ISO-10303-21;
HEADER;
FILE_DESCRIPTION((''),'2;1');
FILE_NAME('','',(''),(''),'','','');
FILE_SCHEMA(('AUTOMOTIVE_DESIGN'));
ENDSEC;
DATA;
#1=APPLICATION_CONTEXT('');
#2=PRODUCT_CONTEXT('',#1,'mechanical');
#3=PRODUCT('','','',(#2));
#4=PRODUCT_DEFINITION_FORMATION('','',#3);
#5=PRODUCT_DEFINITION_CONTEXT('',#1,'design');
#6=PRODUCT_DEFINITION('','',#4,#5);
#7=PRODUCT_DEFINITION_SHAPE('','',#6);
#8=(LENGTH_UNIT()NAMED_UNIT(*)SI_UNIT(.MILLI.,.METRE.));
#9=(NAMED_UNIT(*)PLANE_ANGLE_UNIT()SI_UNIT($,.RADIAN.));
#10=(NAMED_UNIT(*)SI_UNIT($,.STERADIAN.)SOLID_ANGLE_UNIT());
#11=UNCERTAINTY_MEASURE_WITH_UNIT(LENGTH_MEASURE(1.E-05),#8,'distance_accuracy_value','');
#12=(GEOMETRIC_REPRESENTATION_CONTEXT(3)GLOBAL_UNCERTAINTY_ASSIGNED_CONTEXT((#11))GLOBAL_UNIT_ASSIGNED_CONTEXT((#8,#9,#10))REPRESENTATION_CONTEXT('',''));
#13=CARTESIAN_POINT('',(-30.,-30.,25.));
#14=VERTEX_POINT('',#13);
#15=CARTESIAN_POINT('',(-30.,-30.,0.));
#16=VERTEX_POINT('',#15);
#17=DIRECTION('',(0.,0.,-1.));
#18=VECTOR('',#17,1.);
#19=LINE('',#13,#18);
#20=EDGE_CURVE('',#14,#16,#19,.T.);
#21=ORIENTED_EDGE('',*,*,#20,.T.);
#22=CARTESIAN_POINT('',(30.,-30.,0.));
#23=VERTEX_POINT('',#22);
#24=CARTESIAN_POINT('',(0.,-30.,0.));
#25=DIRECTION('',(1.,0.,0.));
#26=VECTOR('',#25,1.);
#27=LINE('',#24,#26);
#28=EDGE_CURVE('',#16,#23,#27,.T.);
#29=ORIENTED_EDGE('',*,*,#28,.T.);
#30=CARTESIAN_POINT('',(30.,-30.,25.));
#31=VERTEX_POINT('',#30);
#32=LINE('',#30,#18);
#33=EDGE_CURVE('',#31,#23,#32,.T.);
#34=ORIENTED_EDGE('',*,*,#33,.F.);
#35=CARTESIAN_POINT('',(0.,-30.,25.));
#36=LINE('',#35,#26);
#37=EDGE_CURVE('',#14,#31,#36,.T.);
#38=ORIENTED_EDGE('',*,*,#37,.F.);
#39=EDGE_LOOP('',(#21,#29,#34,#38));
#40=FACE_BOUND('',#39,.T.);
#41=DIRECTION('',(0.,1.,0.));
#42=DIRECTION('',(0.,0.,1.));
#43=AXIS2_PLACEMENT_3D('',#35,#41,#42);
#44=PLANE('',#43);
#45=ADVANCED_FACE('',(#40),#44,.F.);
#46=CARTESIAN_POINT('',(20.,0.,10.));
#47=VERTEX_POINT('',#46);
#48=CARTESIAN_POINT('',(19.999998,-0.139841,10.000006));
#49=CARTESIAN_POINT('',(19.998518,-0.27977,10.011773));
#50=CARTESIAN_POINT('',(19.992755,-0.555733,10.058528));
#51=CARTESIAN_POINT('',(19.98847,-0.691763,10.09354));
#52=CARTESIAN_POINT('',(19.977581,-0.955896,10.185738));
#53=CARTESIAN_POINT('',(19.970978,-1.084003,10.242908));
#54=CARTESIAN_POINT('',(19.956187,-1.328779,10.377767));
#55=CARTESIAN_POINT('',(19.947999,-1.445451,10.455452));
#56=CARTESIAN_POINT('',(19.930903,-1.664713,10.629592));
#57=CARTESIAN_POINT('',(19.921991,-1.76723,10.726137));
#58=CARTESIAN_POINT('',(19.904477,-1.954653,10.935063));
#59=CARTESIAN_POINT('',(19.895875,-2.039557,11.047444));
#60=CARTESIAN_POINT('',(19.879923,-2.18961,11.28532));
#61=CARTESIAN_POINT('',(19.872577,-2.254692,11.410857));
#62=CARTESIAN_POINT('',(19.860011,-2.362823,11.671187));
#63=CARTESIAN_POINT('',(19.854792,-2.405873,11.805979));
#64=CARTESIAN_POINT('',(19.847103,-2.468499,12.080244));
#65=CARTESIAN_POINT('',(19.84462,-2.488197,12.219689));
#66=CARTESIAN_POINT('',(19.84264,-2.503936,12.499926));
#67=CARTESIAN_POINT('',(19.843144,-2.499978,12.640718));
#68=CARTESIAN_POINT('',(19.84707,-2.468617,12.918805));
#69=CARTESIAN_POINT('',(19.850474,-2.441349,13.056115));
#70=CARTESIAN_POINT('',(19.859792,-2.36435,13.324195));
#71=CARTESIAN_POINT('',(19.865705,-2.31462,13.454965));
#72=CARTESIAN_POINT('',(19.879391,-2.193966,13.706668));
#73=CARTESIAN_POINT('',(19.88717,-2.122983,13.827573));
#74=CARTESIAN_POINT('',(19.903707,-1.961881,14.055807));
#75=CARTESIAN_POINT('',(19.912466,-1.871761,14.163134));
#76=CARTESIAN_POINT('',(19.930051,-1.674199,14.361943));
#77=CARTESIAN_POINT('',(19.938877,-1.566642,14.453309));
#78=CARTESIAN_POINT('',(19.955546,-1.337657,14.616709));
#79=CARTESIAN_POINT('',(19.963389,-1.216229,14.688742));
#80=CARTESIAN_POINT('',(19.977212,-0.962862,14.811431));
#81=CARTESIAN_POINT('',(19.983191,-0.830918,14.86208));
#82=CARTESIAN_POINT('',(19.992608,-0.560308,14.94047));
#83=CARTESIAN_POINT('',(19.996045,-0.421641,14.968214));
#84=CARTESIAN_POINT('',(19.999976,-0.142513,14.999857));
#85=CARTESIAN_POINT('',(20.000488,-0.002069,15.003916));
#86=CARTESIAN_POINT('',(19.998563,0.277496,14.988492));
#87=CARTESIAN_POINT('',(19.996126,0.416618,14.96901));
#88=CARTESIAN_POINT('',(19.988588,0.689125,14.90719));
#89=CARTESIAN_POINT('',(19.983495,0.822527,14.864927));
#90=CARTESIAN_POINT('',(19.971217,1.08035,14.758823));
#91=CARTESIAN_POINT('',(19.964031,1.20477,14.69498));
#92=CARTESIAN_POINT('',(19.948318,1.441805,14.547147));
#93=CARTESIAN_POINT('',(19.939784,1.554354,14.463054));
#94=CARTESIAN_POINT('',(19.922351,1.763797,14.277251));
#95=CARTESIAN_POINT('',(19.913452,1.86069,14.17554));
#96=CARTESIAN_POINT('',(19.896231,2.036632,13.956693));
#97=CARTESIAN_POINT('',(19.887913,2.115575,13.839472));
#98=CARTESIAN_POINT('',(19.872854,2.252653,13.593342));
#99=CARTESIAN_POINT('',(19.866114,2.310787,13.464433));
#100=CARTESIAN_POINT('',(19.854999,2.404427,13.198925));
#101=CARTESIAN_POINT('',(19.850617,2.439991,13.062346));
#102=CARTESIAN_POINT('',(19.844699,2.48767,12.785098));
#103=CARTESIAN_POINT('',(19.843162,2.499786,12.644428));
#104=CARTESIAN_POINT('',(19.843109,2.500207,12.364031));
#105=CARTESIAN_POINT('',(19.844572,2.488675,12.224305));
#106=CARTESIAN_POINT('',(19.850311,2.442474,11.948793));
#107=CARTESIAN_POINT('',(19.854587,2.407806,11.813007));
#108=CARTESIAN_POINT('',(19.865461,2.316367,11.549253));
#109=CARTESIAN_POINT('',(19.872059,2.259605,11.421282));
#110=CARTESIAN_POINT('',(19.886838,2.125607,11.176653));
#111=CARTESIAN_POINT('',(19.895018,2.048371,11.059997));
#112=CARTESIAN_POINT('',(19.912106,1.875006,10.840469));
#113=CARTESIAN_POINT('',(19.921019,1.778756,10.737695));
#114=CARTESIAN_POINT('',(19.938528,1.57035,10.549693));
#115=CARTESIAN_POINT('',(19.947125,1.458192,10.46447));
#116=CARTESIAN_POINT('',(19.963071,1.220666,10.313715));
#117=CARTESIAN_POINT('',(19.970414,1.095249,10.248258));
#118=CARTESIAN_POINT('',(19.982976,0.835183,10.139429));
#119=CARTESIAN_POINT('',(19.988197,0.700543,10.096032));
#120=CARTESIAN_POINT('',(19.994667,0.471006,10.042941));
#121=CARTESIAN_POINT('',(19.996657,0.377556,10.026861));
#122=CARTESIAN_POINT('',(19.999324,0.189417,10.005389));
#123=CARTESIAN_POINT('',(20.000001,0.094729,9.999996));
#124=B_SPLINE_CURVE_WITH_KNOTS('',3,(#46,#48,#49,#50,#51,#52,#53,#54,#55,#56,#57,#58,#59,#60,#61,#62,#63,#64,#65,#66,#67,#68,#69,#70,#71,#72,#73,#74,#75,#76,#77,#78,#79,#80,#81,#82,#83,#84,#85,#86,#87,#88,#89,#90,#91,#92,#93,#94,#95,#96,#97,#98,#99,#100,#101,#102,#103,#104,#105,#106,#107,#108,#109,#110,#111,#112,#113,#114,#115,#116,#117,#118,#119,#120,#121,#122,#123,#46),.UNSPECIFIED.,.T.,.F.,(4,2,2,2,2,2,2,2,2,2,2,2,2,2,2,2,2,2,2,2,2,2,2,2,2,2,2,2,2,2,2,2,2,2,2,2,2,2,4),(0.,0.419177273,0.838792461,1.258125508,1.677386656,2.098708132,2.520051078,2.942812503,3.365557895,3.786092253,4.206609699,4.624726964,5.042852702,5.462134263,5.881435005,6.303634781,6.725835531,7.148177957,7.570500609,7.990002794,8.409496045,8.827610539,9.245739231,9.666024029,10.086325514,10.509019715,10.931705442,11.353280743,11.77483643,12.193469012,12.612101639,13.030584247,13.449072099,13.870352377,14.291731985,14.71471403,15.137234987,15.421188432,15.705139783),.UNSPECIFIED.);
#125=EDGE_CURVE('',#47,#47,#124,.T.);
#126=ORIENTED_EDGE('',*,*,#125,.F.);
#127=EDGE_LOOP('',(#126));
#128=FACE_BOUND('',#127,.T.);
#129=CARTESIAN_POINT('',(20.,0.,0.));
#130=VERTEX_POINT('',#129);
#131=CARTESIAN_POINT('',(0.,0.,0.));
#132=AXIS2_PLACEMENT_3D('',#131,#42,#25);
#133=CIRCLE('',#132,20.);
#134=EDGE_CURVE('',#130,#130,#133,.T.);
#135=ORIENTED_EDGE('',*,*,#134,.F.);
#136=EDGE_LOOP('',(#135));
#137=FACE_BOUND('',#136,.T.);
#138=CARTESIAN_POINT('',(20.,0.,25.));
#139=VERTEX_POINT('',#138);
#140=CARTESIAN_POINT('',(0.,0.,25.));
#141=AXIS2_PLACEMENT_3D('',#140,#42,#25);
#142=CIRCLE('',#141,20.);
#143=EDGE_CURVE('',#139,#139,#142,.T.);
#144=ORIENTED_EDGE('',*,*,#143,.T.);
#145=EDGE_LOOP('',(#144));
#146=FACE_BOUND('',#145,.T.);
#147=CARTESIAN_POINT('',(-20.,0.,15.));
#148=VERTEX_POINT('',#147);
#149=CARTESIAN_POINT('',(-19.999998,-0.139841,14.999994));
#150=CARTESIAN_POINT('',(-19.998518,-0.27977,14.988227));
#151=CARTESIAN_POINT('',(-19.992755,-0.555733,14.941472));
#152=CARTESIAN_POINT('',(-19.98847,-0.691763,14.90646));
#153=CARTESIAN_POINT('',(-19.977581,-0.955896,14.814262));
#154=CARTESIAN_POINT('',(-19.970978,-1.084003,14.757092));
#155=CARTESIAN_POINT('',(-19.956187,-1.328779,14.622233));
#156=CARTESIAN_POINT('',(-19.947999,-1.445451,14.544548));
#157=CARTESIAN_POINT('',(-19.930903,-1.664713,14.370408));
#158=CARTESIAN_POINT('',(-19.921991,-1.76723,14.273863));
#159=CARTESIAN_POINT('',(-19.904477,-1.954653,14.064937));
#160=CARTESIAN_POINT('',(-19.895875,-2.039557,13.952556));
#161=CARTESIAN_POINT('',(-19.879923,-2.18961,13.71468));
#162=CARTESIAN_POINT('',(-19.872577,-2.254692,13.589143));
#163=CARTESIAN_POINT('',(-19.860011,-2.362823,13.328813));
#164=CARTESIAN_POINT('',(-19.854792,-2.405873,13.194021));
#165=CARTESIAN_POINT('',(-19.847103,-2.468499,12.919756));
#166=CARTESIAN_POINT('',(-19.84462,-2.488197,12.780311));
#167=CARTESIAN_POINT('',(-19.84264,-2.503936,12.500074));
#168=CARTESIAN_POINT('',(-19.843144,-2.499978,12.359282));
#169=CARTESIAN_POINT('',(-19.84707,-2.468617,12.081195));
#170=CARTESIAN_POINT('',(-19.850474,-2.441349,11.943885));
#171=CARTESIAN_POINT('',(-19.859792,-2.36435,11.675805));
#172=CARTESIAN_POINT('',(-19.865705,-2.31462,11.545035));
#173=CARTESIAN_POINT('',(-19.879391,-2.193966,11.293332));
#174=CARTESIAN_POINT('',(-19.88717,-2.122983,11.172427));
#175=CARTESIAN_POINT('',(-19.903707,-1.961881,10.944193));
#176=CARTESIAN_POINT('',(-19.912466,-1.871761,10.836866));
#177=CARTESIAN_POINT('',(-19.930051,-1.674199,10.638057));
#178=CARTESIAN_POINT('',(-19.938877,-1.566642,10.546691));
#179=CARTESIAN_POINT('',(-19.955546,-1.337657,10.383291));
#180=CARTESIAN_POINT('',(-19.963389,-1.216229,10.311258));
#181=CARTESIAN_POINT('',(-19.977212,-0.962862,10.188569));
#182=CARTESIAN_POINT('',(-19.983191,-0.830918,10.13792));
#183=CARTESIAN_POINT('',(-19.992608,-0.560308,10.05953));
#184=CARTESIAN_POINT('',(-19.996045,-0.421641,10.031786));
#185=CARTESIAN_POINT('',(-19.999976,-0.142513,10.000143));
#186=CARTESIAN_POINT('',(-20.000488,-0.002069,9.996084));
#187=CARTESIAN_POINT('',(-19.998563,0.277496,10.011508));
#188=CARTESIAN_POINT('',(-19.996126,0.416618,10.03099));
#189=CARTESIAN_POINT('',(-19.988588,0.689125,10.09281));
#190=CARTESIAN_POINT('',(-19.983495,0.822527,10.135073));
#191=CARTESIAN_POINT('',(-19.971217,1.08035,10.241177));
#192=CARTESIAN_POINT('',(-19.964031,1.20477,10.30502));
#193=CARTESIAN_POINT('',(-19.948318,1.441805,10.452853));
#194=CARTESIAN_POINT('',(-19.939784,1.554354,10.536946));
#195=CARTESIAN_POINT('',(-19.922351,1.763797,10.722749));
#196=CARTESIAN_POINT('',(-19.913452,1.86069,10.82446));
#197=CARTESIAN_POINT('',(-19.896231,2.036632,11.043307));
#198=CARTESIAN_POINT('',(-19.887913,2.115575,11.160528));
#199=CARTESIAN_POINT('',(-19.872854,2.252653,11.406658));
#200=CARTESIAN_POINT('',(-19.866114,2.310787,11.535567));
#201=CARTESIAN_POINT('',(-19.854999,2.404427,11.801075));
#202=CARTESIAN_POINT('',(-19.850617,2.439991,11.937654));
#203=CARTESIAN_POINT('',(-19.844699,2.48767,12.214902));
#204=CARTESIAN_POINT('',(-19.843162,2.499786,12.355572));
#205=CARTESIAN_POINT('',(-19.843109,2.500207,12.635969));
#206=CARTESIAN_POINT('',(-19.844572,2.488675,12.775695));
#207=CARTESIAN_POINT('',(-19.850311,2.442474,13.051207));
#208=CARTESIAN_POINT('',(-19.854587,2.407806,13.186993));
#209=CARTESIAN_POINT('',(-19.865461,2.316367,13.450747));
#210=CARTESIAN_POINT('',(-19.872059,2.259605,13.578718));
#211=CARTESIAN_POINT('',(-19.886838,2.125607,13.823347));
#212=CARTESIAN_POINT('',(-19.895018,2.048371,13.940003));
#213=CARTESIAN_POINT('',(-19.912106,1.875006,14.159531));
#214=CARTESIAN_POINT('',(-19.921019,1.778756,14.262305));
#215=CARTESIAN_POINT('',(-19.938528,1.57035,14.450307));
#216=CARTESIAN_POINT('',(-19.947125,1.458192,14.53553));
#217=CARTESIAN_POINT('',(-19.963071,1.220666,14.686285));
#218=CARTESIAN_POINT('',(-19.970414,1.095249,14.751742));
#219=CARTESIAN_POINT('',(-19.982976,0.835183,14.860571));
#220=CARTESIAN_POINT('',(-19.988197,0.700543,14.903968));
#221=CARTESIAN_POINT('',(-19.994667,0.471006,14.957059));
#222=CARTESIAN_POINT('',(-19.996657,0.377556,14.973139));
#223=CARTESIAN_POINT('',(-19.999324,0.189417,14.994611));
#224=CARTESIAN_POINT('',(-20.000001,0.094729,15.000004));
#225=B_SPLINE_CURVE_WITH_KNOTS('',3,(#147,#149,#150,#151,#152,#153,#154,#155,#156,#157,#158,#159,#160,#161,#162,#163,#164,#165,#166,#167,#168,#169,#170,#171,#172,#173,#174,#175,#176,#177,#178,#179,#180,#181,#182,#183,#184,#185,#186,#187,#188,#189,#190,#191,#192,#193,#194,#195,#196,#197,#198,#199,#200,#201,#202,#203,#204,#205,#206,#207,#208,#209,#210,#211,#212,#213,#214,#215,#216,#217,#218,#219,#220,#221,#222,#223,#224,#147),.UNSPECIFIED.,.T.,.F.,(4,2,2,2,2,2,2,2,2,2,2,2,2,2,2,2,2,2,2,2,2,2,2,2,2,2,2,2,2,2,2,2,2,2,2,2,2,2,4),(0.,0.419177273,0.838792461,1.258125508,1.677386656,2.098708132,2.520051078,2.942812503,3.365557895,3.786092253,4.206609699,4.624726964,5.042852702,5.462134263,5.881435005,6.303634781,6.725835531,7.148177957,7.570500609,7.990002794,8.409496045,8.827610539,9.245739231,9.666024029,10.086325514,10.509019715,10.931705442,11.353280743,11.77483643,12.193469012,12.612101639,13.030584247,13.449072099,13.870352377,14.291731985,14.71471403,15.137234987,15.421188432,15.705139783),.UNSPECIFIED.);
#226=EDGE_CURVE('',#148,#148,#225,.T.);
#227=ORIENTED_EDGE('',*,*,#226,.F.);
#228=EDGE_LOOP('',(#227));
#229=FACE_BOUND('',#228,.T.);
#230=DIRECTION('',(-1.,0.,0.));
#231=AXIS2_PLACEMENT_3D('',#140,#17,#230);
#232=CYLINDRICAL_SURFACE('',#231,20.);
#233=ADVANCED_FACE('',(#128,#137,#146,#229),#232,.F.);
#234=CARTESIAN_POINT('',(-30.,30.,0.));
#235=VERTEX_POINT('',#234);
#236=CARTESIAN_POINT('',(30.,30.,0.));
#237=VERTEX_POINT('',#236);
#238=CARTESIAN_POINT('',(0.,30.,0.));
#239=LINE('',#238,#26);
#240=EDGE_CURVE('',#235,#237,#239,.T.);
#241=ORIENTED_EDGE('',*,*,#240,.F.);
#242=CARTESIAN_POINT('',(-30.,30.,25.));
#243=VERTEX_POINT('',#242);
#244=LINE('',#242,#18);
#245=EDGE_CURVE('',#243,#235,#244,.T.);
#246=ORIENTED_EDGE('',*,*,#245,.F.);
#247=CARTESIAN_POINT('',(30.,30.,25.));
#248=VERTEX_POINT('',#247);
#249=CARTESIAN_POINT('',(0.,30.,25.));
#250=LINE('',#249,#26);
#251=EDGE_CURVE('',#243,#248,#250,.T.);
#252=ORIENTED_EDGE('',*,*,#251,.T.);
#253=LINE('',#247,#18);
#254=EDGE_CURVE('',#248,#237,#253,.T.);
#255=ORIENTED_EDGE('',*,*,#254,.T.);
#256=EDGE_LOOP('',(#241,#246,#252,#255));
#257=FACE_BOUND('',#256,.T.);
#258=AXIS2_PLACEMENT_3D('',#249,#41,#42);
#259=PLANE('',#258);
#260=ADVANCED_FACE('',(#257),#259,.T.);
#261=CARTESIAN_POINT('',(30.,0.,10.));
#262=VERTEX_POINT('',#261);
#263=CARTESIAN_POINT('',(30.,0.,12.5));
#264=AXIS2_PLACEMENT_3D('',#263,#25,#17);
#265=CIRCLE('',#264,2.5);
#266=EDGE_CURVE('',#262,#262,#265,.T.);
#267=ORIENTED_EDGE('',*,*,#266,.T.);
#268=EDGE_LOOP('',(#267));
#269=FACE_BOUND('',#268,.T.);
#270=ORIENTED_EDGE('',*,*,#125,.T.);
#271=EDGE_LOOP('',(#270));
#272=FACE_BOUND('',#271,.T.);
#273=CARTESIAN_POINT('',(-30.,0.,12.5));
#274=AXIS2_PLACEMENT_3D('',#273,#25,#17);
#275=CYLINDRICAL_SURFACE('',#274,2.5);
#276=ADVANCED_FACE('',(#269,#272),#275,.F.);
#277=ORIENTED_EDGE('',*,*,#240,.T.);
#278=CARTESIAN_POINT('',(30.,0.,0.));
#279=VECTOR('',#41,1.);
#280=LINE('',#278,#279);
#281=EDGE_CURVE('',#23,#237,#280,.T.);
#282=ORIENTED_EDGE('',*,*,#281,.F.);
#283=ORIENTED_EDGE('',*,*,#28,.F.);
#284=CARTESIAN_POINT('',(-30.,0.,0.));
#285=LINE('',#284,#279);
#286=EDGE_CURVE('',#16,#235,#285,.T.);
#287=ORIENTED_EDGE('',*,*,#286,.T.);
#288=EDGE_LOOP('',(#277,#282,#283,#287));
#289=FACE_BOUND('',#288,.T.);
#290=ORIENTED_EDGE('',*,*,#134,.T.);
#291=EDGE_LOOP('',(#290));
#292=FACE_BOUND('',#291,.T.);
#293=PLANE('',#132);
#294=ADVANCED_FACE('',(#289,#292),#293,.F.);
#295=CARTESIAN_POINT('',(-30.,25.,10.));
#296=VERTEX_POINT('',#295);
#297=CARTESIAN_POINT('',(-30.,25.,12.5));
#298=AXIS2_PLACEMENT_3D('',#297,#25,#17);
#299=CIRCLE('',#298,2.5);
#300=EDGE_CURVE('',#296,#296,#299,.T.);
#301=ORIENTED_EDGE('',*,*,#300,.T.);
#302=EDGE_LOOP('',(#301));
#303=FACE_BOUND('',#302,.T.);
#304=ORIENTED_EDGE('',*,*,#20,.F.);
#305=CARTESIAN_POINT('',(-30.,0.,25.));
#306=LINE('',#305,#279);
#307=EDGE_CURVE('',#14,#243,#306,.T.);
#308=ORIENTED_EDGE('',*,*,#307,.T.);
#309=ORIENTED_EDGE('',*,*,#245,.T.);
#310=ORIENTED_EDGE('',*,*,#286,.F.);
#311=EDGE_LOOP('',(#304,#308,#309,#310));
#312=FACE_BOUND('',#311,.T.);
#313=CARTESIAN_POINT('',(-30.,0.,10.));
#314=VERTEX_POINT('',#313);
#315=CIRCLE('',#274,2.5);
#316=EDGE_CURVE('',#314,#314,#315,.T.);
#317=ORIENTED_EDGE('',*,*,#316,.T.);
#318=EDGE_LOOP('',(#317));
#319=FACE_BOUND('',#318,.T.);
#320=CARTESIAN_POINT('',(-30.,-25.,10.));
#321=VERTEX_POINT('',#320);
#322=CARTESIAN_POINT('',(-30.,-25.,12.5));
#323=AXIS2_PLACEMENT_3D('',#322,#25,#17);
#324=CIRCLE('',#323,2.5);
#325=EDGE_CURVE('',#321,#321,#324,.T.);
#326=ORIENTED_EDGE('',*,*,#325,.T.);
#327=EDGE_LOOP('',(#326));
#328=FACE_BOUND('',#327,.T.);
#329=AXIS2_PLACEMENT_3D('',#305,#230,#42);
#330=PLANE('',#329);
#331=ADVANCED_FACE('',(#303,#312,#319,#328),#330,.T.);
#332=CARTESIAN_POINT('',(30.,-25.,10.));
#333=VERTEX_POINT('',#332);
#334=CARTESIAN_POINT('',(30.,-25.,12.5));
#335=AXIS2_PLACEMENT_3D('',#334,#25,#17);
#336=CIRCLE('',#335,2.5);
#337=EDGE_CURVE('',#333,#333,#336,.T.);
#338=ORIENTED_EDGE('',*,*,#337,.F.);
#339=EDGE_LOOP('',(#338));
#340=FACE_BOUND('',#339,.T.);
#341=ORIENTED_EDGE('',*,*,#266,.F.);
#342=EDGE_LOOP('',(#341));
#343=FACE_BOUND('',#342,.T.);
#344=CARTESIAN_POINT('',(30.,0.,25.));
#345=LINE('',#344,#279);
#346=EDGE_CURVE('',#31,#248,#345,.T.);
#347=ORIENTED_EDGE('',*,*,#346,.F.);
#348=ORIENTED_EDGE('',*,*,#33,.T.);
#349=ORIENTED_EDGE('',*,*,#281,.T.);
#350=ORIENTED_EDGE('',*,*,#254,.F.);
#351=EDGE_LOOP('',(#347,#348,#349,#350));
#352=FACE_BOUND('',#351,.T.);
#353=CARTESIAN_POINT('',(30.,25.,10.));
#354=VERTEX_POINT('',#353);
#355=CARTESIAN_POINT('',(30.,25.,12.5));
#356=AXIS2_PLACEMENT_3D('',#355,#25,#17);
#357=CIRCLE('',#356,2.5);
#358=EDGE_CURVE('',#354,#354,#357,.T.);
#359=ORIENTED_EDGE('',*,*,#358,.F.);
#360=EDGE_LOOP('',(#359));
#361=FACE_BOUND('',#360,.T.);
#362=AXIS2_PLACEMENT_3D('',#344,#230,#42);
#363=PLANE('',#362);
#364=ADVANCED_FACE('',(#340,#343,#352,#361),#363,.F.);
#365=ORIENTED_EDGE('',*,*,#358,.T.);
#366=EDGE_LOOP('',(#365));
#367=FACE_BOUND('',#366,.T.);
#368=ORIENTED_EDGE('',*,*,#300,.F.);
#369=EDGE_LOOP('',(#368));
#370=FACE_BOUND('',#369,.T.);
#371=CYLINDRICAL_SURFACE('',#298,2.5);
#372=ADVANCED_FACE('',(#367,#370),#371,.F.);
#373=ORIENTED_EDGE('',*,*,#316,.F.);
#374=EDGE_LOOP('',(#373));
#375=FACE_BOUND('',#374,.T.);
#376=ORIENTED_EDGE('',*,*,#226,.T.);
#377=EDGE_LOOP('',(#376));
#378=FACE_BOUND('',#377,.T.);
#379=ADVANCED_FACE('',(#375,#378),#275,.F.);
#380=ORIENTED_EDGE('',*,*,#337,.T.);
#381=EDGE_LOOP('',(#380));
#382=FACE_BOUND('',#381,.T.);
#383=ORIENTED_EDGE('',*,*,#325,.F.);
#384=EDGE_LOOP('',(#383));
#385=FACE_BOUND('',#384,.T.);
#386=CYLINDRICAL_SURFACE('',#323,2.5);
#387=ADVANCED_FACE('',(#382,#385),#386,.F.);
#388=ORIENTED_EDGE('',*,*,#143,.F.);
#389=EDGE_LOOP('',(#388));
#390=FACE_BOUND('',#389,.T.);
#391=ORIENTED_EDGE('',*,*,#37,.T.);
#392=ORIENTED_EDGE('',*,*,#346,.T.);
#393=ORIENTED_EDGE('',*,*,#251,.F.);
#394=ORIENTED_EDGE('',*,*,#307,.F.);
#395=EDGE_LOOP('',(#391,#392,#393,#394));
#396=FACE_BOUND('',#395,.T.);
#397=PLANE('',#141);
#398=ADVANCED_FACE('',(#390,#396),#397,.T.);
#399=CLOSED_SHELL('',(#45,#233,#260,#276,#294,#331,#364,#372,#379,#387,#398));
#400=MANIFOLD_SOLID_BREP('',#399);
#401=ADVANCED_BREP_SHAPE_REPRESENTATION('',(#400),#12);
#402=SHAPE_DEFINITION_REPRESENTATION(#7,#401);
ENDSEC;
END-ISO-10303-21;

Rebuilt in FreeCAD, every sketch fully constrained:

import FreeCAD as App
import Part
import Sketcher
from FreeCAD import Vector
Q = App.Units.Quantity

doc = App.newDocument("Part")
params = doc.addObject("Spreadsheet::Sheet", "Params")
for row, (alias, value) in enumerate([
    ("sketch1_diameter", "40 mm"),
    ("sketch1_width", "60 mm"),
    ("pad1_length", "25 mm"),
    ("sketch2_diameter", "5 mm"),
], start=1):
    params.set(f"A{row}", alias)
    params.set(f"B{row}", "=" + value)
    params.setAlias(f"B{row}", alias)

body = doc.addObject("PartDesign::Body", "Body")

sketch1 = body.newObject("Sketcher::SketchObject", "Sketch")
sketch1.AttachmentSupport = (doc.getObject("XY_Plane"), [""])
sketch1.MapMode = "FlatFace"
sketch1.addGeometry([
    Part.LineSegment(Vector(30, 30, 0), Vector(-30, 30, 0)),
    Part.LineSegment(Vector(-30, 30, 0), Vector(-30, -30, 0)),
    Part.LineSegment(Vector(-30, -30, 0), Vector(30, -30, 0)),
    Part.LineSegment(Vector(30, -30, 0), Vector(30, 30, 0)),
    Part.Circle(Vector(0, 0, 0), Vector(0, 0, 1), 20),
], False)
sketch1.addConstraint([
    Sketcher.Constraint("Coincident", 0, 2, 1, 1),
    Sketcher.Constraint("Coincident", 1, 2, 2, 1),
    Sketcher.Constraint("Coincident", 2, 2, 3, 1),
    Sketcher.Constraint("Coincident", 3, 2, 0, 1),
    Sketcher.Constraint("Horizontal", 0),
    Sketcher.Constraint("Vertical", 1),
    Sketcher.Constraint("Horizontal", 2),
    Sketcher.Constraint("Vertical", 3),
    Sketcher.Constraint("Coincident", 4, 3, -1, 1),
    Sketcher.Constraint("Symmetric", 0, 2, 2, 2, -1, 1),
    Sketcher.Constraint("Equal", 2, 1),
    Sketcher.Constraint("Diameter", 4, Q("40 mm")),
    Sketcher.Constraint("DistanceX", 0, 2, 0, 1, Q("60 mm")),
])
sketch1.setExpression("Constraints[11]", "Params.sketch1_diameter")
sketch1.setExpression("Constraints[12]", "Params.sketch1_width")
pad1 = body.newObject("PartDesign::Pad", "Pad")
pad1.Profile = sketch1
pad1.setExpression("Length", "Params.pad1_length")

sketch2 = body.newObject("Sketcher::SketchObject", "Sketch001")
sketch2.AttachmentSupport = (doc.getObject("YZ_Plane"), [""])
sketch2.MapMode = "FlatFace"
sketch2.AttachmentOffset = App.Placement(Vector(0, 0, 30), App.Rotation())
sketch2.addGeometry([
    Part.Circle(Vector(25, 12.5, 0), Vector(0, 0, 1), 2.5),
    Part.Circle(Vector(-25, 12.5, 0), Vector(0, 0, 1), 2.5),
    Part.Circle(Vector(0, 12.5, 0), Vector(0, 0, 1), 2.5),
], False)
sketch2.addConstraint([
    Sketcher.Constraint("Equal", 0, 1),
    Sketcher.Constraint("Equal", 1, 2),
    Sketcher.Constraint("Symmetric", 0, 3, 1, 3, -2),
    Sketcher.Constraint("PointOnObject", 2, 3, -2),
    Sketcher.Constraint("Horizontal", 1, 3, 2, 3),
    Sketcher.Constraint("Diameter", 0, Q("5 mm")),
    Sketcher.Constraint("DistanceX", -1, 1, 0, 3, Q("25 mm")),
    Sketcher.Constraint("DistanceY", -1, 1, 0, 3, Q("12.5 mm")),
])
sketch2.setExpression("Constraints[5]", "Params.sketch2_diameter")
pocket1 = body.newObject("PartDesign::Pocket", "Pocket")
pocket1.Profile = sketch2
pocket1.Type = "ThroughAll"

doc.recompute()
